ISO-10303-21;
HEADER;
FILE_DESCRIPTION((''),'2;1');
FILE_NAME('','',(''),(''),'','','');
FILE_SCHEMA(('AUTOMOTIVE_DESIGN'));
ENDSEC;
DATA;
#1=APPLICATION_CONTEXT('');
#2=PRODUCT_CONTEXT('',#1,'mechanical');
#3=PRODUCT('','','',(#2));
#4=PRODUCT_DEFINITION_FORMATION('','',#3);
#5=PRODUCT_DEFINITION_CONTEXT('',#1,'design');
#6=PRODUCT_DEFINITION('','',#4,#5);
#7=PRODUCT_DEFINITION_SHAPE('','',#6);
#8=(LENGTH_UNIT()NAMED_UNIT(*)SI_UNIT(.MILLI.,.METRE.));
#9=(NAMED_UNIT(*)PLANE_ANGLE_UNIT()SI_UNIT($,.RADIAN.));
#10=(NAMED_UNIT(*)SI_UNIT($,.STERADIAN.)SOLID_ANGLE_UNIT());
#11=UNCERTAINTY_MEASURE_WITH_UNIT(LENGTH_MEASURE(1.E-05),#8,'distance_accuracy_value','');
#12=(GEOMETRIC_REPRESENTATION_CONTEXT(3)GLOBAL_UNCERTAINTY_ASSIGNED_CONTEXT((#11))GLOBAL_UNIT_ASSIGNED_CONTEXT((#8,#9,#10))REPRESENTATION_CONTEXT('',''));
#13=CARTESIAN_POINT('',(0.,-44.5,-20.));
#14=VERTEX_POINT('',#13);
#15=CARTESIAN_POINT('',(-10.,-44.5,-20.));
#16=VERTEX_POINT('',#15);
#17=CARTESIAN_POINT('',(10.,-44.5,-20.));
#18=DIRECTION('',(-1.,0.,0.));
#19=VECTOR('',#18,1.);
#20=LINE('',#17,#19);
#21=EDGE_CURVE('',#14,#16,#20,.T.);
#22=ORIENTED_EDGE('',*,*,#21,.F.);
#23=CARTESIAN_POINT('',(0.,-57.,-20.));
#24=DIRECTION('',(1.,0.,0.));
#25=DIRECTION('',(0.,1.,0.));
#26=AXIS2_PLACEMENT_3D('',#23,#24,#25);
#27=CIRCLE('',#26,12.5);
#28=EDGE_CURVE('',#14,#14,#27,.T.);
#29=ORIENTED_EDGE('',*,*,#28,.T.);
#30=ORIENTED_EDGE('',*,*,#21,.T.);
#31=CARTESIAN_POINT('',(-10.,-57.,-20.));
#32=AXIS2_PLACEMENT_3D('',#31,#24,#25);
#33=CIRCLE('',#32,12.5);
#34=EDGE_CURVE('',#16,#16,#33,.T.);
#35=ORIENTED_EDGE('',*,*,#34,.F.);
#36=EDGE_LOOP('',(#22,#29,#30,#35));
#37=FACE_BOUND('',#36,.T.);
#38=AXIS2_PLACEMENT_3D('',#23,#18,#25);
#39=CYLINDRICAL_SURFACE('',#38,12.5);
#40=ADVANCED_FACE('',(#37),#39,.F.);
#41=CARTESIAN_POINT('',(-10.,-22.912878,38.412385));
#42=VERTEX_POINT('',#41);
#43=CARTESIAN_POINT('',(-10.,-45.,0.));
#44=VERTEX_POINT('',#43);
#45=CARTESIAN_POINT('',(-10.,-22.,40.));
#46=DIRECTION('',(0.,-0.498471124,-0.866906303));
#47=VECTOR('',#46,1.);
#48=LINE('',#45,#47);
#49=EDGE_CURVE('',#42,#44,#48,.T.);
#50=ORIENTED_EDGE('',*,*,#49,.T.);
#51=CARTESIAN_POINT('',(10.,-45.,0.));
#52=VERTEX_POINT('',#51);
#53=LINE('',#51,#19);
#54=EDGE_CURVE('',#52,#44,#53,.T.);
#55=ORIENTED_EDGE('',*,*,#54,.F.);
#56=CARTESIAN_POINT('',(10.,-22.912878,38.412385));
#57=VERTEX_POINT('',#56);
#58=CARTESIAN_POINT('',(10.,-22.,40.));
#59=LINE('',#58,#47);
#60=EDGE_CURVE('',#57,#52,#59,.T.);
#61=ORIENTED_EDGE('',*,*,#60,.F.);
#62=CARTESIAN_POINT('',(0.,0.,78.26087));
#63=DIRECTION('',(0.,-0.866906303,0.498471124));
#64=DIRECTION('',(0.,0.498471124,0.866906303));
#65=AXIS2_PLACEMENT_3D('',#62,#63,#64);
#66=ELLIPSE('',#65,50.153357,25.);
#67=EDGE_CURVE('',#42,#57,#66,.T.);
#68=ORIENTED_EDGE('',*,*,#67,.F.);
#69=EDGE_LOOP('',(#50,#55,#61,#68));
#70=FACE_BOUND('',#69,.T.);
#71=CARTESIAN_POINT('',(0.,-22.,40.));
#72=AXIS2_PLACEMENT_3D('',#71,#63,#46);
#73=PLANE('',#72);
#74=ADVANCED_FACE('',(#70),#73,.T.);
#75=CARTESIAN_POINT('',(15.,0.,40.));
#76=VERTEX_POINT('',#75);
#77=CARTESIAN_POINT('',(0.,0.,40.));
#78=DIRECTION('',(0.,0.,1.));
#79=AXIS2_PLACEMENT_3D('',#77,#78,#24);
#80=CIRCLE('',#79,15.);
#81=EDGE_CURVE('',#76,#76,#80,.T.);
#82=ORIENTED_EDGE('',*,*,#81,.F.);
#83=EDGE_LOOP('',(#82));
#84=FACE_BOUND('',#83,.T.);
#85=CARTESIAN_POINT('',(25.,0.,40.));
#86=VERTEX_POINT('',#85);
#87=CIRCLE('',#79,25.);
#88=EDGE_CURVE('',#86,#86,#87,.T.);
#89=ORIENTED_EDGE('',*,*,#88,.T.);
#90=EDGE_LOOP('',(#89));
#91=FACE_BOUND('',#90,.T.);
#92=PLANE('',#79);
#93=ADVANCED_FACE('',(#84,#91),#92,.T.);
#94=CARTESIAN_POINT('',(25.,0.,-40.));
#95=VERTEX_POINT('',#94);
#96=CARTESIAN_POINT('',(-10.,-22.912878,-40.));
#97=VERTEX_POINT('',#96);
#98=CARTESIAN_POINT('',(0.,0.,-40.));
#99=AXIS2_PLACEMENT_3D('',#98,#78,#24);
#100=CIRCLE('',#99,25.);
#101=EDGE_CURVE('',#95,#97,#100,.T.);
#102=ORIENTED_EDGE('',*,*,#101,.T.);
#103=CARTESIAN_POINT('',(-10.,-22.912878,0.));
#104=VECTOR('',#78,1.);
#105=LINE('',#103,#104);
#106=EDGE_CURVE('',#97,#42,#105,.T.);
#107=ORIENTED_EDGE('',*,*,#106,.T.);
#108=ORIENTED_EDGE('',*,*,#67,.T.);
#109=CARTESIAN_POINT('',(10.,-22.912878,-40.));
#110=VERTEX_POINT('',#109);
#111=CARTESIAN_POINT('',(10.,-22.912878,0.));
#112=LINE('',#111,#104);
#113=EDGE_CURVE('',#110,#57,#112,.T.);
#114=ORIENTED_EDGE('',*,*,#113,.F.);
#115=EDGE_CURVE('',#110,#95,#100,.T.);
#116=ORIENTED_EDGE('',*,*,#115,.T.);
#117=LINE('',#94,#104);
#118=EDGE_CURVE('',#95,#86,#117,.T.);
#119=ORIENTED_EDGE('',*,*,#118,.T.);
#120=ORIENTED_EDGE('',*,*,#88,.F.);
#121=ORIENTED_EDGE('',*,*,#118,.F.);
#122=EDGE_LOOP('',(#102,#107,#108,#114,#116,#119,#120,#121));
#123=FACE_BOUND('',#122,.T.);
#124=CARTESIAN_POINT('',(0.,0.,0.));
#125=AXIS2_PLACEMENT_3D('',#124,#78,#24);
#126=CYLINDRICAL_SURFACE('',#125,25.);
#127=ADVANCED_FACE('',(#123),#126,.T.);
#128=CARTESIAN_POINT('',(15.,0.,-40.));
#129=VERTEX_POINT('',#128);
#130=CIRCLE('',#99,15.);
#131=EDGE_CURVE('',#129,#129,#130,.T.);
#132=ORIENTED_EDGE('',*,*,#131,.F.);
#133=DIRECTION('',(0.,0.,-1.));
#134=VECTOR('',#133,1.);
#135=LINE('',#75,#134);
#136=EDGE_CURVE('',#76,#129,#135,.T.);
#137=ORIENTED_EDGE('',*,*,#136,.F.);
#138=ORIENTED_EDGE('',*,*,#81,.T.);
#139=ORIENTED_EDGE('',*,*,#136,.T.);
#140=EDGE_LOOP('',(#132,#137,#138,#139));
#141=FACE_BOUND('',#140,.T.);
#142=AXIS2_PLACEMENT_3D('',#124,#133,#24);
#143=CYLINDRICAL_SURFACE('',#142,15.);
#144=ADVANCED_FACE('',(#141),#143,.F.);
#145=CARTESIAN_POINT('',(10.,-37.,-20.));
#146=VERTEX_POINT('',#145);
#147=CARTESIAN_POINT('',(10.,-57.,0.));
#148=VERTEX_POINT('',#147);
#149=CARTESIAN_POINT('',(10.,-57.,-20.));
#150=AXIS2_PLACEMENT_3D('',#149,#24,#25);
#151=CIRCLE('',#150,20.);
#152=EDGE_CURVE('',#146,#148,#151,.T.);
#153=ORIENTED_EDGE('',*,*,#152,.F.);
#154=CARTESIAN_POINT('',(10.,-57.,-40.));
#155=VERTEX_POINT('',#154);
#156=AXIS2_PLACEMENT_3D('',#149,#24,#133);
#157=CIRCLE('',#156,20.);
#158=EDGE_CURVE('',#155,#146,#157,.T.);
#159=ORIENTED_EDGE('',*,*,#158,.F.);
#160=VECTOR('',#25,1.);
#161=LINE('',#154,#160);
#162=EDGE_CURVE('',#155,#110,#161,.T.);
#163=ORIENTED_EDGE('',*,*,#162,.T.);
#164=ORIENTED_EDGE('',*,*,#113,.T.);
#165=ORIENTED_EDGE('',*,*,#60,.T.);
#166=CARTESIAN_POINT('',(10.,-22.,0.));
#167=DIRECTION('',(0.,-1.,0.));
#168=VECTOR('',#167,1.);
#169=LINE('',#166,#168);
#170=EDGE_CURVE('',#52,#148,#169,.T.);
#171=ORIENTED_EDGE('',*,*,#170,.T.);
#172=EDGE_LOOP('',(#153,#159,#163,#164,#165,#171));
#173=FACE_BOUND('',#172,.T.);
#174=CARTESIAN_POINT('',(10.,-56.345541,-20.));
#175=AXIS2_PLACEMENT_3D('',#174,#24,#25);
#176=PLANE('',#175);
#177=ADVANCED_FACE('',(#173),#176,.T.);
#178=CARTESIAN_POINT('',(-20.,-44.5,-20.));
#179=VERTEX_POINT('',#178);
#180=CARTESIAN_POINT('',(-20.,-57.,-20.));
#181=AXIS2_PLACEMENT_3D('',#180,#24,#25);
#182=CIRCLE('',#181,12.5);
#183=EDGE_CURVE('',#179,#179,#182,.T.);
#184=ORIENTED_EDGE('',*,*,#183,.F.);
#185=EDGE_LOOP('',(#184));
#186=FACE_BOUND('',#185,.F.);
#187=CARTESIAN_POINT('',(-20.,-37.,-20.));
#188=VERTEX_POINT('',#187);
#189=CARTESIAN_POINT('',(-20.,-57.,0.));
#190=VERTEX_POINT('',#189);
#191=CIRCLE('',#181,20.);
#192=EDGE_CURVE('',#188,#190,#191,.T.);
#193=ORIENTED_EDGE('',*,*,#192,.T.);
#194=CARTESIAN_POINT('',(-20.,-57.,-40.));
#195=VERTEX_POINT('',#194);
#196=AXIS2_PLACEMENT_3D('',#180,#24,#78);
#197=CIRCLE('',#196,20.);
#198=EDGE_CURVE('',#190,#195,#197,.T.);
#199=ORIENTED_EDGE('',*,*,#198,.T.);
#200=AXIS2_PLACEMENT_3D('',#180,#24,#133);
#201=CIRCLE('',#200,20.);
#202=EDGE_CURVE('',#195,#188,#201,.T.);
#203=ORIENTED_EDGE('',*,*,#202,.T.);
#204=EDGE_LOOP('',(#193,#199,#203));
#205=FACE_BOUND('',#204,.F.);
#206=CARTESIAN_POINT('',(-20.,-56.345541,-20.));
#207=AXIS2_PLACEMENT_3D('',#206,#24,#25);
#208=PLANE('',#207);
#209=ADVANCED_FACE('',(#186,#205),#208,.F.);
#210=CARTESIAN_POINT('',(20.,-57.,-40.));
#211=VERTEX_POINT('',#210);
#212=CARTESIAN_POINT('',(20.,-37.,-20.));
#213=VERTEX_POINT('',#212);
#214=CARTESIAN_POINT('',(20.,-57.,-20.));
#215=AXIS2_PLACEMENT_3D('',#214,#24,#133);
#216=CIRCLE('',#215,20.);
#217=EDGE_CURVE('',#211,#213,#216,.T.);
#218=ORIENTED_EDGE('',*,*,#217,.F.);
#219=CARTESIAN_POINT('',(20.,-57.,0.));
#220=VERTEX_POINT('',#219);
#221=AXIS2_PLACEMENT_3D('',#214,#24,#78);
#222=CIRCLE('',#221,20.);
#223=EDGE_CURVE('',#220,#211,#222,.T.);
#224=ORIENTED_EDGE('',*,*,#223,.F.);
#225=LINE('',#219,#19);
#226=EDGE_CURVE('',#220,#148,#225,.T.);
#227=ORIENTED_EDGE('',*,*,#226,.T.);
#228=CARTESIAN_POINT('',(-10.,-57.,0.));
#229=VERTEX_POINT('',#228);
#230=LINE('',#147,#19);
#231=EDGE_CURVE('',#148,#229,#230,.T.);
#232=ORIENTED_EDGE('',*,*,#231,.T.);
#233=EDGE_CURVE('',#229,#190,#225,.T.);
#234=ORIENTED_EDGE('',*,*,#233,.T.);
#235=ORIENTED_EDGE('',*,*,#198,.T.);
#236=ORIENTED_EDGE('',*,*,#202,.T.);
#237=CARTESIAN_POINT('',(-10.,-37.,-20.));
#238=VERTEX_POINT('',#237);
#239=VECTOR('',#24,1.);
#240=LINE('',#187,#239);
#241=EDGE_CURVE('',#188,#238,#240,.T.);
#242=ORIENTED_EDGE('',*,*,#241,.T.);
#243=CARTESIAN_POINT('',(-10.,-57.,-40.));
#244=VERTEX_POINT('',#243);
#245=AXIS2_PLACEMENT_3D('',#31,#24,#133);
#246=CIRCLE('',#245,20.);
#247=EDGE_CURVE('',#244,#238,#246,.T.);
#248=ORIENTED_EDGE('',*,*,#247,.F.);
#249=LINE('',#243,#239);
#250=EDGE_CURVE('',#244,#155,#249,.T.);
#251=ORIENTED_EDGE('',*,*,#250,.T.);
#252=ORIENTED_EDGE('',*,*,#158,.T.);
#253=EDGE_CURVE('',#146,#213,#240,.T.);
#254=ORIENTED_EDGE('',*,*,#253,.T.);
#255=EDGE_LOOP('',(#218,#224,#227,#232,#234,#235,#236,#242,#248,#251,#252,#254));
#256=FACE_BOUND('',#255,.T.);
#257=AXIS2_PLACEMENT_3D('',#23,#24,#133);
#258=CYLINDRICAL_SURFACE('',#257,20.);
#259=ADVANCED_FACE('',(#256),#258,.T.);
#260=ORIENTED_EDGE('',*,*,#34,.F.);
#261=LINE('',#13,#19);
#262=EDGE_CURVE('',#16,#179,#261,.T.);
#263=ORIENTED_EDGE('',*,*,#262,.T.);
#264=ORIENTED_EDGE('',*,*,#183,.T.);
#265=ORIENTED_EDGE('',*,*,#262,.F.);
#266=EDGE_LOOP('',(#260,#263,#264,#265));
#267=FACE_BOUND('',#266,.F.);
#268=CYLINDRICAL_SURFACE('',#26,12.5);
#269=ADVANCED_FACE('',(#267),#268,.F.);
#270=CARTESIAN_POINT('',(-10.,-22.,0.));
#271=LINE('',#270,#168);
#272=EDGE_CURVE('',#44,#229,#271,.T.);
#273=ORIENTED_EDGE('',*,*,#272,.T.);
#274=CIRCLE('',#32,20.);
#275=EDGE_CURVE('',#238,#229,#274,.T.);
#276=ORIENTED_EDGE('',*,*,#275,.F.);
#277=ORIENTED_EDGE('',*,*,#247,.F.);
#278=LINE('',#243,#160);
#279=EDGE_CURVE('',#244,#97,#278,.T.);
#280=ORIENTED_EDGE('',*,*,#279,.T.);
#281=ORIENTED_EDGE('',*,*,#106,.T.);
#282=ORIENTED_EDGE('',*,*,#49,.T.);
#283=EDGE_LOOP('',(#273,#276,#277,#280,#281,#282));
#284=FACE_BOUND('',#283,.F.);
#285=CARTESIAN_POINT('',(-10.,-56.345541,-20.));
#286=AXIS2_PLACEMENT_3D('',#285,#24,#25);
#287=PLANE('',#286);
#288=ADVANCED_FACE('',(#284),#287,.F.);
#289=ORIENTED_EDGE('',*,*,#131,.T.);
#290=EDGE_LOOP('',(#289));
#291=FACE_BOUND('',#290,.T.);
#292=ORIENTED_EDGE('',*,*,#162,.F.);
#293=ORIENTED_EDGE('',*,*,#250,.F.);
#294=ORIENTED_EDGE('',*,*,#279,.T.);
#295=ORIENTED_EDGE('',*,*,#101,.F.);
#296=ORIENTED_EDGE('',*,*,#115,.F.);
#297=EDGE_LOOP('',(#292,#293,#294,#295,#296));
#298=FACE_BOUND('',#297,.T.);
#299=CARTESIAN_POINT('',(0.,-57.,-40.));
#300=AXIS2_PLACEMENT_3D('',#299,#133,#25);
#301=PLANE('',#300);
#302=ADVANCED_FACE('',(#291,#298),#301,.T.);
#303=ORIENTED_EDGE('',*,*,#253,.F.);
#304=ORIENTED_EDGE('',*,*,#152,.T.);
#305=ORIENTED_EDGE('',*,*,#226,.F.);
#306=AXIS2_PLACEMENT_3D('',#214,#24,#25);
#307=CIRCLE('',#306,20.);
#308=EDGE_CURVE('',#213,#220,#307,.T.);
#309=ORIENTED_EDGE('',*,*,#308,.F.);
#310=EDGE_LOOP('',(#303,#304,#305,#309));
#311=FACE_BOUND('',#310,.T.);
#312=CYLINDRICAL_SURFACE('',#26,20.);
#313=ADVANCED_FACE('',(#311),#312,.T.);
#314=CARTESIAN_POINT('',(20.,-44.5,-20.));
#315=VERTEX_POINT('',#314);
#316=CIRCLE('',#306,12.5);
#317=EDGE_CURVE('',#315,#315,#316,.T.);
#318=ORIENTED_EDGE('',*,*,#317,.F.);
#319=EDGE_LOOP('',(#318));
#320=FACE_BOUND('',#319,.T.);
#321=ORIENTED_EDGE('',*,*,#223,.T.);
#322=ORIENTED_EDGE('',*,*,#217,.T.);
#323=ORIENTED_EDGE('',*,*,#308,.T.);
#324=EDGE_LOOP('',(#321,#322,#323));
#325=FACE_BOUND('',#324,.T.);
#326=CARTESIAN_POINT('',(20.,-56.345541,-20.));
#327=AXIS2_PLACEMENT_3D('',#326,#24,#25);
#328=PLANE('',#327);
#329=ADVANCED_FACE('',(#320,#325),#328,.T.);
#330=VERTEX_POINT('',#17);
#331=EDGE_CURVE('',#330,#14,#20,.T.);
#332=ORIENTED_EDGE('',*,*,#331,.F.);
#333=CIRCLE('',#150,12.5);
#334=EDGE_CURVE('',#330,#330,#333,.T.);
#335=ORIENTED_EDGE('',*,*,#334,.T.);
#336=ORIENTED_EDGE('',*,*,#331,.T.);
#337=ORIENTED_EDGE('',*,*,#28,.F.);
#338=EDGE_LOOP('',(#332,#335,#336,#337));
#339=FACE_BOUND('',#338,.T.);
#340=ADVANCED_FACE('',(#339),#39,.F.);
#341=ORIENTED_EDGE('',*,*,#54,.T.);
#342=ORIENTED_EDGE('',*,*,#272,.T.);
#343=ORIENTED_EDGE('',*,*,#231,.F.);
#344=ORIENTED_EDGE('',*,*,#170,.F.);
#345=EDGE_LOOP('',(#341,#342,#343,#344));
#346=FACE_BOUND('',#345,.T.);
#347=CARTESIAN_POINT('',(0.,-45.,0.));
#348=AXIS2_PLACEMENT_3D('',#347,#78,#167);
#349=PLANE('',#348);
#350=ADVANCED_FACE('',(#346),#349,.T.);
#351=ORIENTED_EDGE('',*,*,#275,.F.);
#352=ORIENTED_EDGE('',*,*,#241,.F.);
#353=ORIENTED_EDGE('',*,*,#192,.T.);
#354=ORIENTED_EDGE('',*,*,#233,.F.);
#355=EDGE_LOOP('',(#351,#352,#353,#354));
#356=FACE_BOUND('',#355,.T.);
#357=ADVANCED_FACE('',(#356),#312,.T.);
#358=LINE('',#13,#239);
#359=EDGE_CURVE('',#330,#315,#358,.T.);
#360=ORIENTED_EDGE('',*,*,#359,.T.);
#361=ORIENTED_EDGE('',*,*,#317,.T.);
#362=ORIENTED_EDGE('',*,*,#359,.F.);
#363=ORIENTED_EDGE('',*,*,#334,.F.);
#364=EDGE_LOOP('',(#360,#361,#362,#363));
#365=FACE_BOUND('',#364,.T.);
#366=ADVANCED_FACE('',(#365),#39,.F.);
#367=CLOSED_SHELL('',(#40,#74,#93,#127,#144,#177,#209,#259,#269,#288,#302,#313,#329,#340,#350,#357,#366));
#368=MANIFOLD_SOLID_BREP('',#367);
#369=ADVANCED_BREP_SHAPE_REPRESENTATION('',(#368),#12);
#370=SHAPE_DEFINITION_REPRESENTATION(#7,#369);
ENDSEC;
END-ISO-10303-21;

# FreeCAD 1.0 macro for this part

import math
import FreeCAD as App
import Part
import Sketcher
from FreeCAD import Vector
Q = App.Units.Quantity

doc = App.newDocument("Part")
body = doc.addObject("PartDesign::Body", "Body")

# Sketch on XY plane
sketch1 = body.newObject("Sketcher::SketchObject", "Sketch")
sketch1.AttachmentSupport = (doc.getObject("XY_Plane"), [""])
sketch1.MapMode = "FlatFace"
sketch1.addGeometry([
    Part.Circle(Vector(0, 0, 0), Vector(0, 0, 1), 25),
    Part.Circle(Vector(0, 0, 0), Vector(0, 0, 1), 15),
], False)
sketch1.addConstraint([
    Sketcher.Constraint("Coincident", 0, 3, -1, 1),
    Sketcher.Constraint("Coincident", 1, 3, -1, 1),
    Sketcher.Constraint("Diameter", 0, Q("50 mm")),
    Sketcher.Constraint("Diameter", 1, Q("30 mm")),
])
pad1 = body.newObject("PartDesign::Pad", "Pad")
pad1.Profile = sketch1
pad1.Length = 80
pad1.Midplane = True

# Sketch on YZ plane
sketch2 = body.newObject("Sketcher::SketchObject", "Sketch001")
sketch2.AttachmentSupport = (doc.getObject("YZ_Plane"), [""])
sketch2.MapMode = "FlatFace"
sketch2.addGeometry([
    Part.ArcOfCircle(Part.Circle(Vector(-57, -20, 0), Vector(0, 0, 1), 20), math.radians(90), math.radians(270)),  # 0
    Part.LineSegment(Vector(-57, -40, 0), Vector(-22, -40, 0)),  # 1
    Part.LineSegment(Vector(-22, -40, 0), Vector(-22, 40, 0)),  # 2
    Part.LineSegment(Vector(-22, 40, 0), Vector(-45, 0, 0)),  # 3
    Part.LineSegment(Vector(-45, 0, 0), Vector(-57, 0, 0)),  # 4
    Part.Circle(Vector(-57, -20, 0), Vector(0, 0, 1), 12.5),  # 5
], False)
sketch2.addConstraint([
    Sketcher.Constraint("Tangent", 0, 2, 1, 1),
    Sketcher.Constraint("Coincident", 1, 2, 2, 1),
    Sketcher.Constraint("Coincident", 2, 2, 3, 1),
    Sketcher.Constraint("Coincident", 3, 2, 4, 1),
    Sketcher.Constraint("Tangent", 4, 2, 0, 1),
    Sketcher.Constraint("Horizontal", 1),
    Sketcher.Constraint("Vertical", 2),
    Sketcher.Constraint("Horizontal", 4),
    Sketcher.Constraint("Coincident", 5, 3, 0, 3),
    Sketcher.Constraint("PointOnObject", 3, 2, -1),
    Sketcher.Constraint("Diameter", 5, Q("25 mm")),
    Sketcher.Constraint("Radius", 0, Q("20 mm")),
    Sketcher.Constraint("DistanceX", 1, 1, 1, 2, Q("35 mm")),
    Sketcher.Constraint("DistanceX", 4, 2, 4, 1, Q("12 mm")),
    Sketcher.Constraint("DistanceY", 2, 1, 2, 2, Q("80 mm")),
    Sketcher.Constraint("DistanceX", 0, 3, -1, 1, Q("57 mm")),
])
pad2 = body.newObject("PartDesign::Pad", "Pad001")
pad2.Profile = sketch2
pad2.Length = 20
pad2.Midplane = True

# Sketch on YZ plane
sketch3 = body.newObject("Sketcher::SketchObject", "Sketch002")
sketch3.AttachmentSupport = (doc.getObject("YZ_Plane"), [""])
sketch3.MapMode = "FlatFace"
sketch3.addGeometry([
    Part.ArcOfCircle(Part.Circle(Vector(-57, -20, 0), Vector(0, 0, 1), 20), math.radians(-90), math.radians(0)),
    Part.ArcOfCircle(Part.Circle(Vector(-57, -20, 0), Vector(0, 0, 1), 20), math.radians(0), math.radians(90)),
    Part.ArcOfCircle(Part.Circle(Vector(-57, -20, 0), Vector(0, 0, 1), 20), math.radians(90), math.radians(270)),
    Part.Circle(Vector(-57, -20, 0), Vector(0, 0, 1), 12.5),
], False)
sketch3.addConstraint([
    Sketcher.Constraint("Tangent", 0, 2, 1, 1),
    Sketcher.Constraint("Tangent", 1, 2, 2, 1),
    Sketcher.Constraint("Tangent", 2, 2, 0, 1),
    Sketcher.Constraint("Coincident", 3, 3, 0, 3),
    Sketcher.Constraint("PointOnObject", 1, 2, -1),
    Sketcher.Constraint("Horizontal", 3, 3, 0, 2),
    Sketcher.Constraint("Vertical", 3, 3, 1, 2),
    Sketcher.Constraint("Vertical", 1, 2, 2, 2),
    Sketcher.Constraint("Diameter", 3, Q("25 mm")),
    Sketcher.Constraint("Radius", 0, Q("20 mm")),
    Sketcher.Constraint("DistanceX", 0, 3, -1, 1, Q("57 mm")),
])
pad3 = body.newObject("PartDesign::Pad", "Pad002")
pad3.Profile = sketch3
pad3.Length = 40
pad3.Midplane = True

doc.recompute()
